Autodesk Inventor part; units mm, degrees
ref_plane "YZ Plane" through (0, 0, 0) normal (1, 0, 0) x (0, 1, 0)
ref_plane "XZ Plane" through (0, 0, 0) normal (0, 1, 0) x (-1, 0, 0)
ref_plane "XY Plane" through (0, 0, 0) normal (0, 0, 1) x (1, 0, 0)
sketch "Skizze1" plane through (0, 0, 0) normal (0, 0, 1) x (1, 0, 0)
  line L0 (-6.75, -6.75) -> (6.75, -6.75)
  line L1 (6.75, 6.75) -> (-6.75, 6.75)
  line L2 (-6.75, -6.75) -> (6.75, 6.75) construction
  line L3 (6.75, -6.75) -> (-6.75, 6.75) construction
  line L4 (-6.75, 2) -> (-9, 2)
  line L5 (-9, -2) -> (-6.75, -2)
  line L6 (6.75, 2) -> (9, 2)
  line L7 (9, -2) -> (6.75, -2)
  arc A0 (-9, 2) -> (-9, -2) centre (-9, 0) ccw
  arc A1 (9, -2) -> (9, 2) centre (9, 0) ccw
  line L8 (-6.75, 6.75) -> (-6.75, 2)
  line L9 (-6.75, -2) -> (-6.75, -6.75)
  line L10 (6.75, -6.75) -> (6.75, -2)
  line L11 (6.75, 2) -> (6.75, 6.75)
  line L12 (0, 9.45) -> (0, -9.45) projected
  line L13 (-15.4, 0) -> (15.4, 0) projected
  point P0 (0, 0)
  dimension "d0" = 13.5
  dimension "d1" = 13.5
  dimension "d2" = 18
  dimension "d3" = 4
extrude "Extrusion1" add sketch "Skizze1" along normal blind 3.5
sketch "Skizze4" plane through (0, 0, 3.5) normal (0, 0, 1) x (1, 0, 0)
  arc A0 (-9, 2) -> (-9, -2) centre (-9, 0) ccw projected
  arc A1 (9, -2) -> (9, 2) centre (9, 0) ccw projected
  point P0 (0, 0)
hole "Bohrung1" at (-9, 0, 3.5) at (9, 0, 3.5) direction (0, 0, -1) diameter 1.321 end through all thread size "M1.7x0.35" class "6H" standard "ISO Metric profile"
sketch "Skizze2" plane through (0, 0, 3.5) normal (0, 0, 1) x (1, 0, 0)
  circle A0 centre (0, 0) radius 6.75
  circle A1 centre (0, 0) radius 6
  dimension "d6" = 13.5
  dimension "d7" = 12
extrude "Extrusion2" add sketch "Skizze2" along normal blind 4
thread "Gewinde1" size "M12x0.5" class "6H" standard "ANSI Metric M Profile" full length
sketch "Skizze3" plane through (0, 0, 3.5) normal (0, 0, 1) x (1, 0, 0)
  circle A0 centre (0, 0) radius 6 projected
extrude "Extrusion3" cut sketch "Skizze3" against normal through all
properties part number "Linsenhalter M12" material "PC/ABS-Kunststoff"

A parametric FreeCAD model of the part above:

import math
import FreeCAD as App
import Part
import Sketcher
Q = App.Units.Quantity

doc = App.newDocument("Part")
body = doc.addObject("PartDesign::Body", "Body")

sketch1 = doc.addObject("Sketcher::SketchObject", "Sketch")
body.addObject(sketch1)
sketch1.AttachmentSupport = (doc.XY_Plane, [""])
sketch1.MapMode = "FlatFace"
sketch1.addGeometry([
    Part.LineSegment(App.Vector(-6.8, -2, 0), App.Vector(-6.8, -6.8, 0)),
    Part.LineSegment(App.Vector(-6.8, -6.8, 0), App.Vector(6.8, -6.8, 0)),
    Part.LineSegment(App.Vector(6.8, -6.8, 0), App.Vector(6.8, -2, 0)),
    Part.LineSegment(App.Vector(6.8, -2, 0), App.Vector(9, -2, 0)),
    Part.ArcOfCircle(Part.Circle(App.Vector(9, 0, 0), App.Vector(0, 0, 1), 2), math.radians(-90), math.radians(90)),
    Part.LineSegment(App.Vector(9, 2, 0), App.Vector(6.8, 2, 0)),
    Part.LineSegment(App.Vector(6.8, 2, 0), App.Vector(6.8, 6.8, 0)),
    Part.LineSegment(App.Vector(6.8, 6.8, 0), App.Vector(-6.8, 6.8, 0)),
    Part.LineSegment(App.Vector(-6.8, 6.8, 0), App.Vector(-6.8, 2, 0)),
    Part.LineSegment(App.Vector(-6.8, 2, 0), App.Vector(-9, 2, 0)),
    Part.ArcOfCircle(Part.Circle(App.Vector(-9, 0, 0), App.Vector(0, 0, 1), 2), math.radians(90), math.radians(270)),
    Part.LineSegment(App.Vector(-9, -2, 0), App.Vector(-6.8, -2, 0)),
], False)
sketch1.addConstraint([
    Sketcher.Constraint("Coincident", 0, 2, 1, 1),
    Sketcher.Constraint("Coincident", 1, 2, 2, 1),
    Sketcher.Constraint("Coincident", 2, 2, 3, 1),
    Sketcher.Constraint("Tangent", 3, 2, 4, 1),
    Sketcher.Constraint("Tangent", 4, 2, 5, 1),
    Sketcher.Constraint("Coincident", 5, 2, 6, 1),
    Sketcher.Constraint("Coincident", 6, 2, 7, 1),
    Sketcher.Constraint("Coincident", 7, 2, 8, 1),
    Sketcher.Constraint("Coincident", 8, 2, 9, 1),
    Sketcher.Constraint("Tangent", 9, 2, 10, 1),
    Sketcher.Constraint("Tangent", 10, 2, 11, 1),
    Sketcher.Constraint("Coincident", 11, 2, 0, 1),
    Sketcher.Constraint("Vertical", 0),
    Sketcher.Constraint("Horizontal", 1),
    Sketcher.Constraint("Vertical", 2),
    Sketcher.Constraint("Horizontal", 3),
    Sketcher.Constraint("Horizontal", 5),
    Sketcher.Constraint("Vertical", 6),
    Sketcher.Constraint("Horizontal", 7),
    Sketcher.Constraint("Vertical", 8),
    Sketcher.Constraint("Horizontal", 9),
    Sketcher.Constraint("Horizontal", 11),
    Sketcher.Constraint("Equal", 4, 10),
    Sketcher.Constraint("Symmetric", 4, 3, 10, 3, -1, 1),
    Sketcher.Constraint("Symmetric", 0, 2, 6, 2, -1, 1),
    Sketcher.Constraint("Symmetric", 5, 2, 8, 2, -2),
    Sketcher.Constraint("Vertical", 2, 2, 5, 2),
    Sketcher.Constraint("Radius", 4, Q("2 mm")),
    Sketcher.Constraint("DistanceX", 1, 1, 1, 2, Q("13.5 mm")),
    Sketcher.Constraint("DistanceX", 10, 3, 4, 3, Q("18 mm")),
    Sketcher.Constraint("DistanceY", 0, 2, 7, 2, Q("13.5 mm")),
])
pad1 = doc.addObject("PartDesign::Pad", "Pad")
body.addObject(pad1)
pad1.Profile = sketch1
pad1.Length = 3.5

sketch2 = doc.addObject("Sketcher::SketchObject", "Sketch001")
body.addObject(sketch2)
sketch2.AttachmentSupport = (doc.XY_Plane, [""])
sketch2.MapMode = "FlatFace"
sketch2.AttachmentOffset = App.Placement(App.Vector(0, 0, 3.5), App.Rotation())
sketch2.addGeometry([
    Part.Circle(App.Vector(-9, 0, 0), App.Vector(0, 0, 1), 0.7),
    Part.Circle(App.Vector(9, 0, 0), App.Vector(0, 0, 1), 0.7),
], False)
sketch2.addConstraint([
    Sketcher.Constraint("Equal", 0, 1),
    Sketcher.Constraint("Symmetric", 0, 3, 1, 3, -1, 1),
    Sketcher.Constraint("PointOnObject", 0, 3, -1),
    Sketcher.Constraint("Diameter", 0, Q("1.321 mm")),
    Sketcher.Constraint("DistanceX", 0, 3, -1, 1, Q("9 mm")),
])
doc.recompute()
hole = doc.addObject("PartDesign::Hole", "Hole")
body.addObject(hole)
hole.Profile = sketch2
hole.ThreadType = "None"
hole.Diameter = 1.321
hole.DepthType = "ThroughAll"

sketch3 = doc.addObject("Sketcher::SketchObject", "Sketch002")
body.addObject(sketch3)
sketch3.AttachmentSupport = (doc.XY_Plane, [""])
sketch3.MapMode = "FlatFace"
sketch3.AttachmentOffset = App.Placement(App.Vector(0, 0, 3.5), App.Rotation())
sketch3.addGeometry([
    Part.Circle(App.Vector(0, 0, 0), App.Vector(0, 0, 1), 7),
    Part.Circle(App.Vector(0, 0, 0), App.Vector(0, 0, 1), 6),
], False)
sketch3.addConstraint([
    Sketcher.Constraint("Coincident", 0, 3, -1, 1),
    Sketcher.Constraint("Coincident", 1, 3, -1, 1),
    Sketcher.Constraint("Diameter", 1, Q("12 mm")),
    Sketcher.Constraint("Diameter", 0, Q("13.5 mm")),
])
pad2 = doc.addObject("PartDesign::Pad", "Pad001")
body.addObject(pad2)
pad2.Profile = sketch3
pad2.Length = 4

sketch4 = doc.addObject("Sketcher::SketchObject", "Sketch003")
body.addObject(sketch4)
sketch4.AttachmentSupport = (doc.XY_Plane, [""])
sketch4.MapMode = "FlatFace"
sketch4.AttachmentOffset = App.Placement(App.Vector(0, 0, 3.5), App.Rotation())
sketch4.addGeometry(Part.Circle(App.Vector(0, 0, 0), App.Vector(0, 0, 1), 6), False)
sketch4.addConstraint([
    Sketcher.Constraint("Coincident", 0, 3, -1, 1),
    Sketcher.Constraint("Diameter", 0, Q("12 mm")),
])
pocket1 = doc.addObject("PartDesign::Pocket", "Pocket")
body.addObject(pocket1)
pocket1.Profile = sketch4
pocket1.Type = "ThroughAll"

doc.recompute()
